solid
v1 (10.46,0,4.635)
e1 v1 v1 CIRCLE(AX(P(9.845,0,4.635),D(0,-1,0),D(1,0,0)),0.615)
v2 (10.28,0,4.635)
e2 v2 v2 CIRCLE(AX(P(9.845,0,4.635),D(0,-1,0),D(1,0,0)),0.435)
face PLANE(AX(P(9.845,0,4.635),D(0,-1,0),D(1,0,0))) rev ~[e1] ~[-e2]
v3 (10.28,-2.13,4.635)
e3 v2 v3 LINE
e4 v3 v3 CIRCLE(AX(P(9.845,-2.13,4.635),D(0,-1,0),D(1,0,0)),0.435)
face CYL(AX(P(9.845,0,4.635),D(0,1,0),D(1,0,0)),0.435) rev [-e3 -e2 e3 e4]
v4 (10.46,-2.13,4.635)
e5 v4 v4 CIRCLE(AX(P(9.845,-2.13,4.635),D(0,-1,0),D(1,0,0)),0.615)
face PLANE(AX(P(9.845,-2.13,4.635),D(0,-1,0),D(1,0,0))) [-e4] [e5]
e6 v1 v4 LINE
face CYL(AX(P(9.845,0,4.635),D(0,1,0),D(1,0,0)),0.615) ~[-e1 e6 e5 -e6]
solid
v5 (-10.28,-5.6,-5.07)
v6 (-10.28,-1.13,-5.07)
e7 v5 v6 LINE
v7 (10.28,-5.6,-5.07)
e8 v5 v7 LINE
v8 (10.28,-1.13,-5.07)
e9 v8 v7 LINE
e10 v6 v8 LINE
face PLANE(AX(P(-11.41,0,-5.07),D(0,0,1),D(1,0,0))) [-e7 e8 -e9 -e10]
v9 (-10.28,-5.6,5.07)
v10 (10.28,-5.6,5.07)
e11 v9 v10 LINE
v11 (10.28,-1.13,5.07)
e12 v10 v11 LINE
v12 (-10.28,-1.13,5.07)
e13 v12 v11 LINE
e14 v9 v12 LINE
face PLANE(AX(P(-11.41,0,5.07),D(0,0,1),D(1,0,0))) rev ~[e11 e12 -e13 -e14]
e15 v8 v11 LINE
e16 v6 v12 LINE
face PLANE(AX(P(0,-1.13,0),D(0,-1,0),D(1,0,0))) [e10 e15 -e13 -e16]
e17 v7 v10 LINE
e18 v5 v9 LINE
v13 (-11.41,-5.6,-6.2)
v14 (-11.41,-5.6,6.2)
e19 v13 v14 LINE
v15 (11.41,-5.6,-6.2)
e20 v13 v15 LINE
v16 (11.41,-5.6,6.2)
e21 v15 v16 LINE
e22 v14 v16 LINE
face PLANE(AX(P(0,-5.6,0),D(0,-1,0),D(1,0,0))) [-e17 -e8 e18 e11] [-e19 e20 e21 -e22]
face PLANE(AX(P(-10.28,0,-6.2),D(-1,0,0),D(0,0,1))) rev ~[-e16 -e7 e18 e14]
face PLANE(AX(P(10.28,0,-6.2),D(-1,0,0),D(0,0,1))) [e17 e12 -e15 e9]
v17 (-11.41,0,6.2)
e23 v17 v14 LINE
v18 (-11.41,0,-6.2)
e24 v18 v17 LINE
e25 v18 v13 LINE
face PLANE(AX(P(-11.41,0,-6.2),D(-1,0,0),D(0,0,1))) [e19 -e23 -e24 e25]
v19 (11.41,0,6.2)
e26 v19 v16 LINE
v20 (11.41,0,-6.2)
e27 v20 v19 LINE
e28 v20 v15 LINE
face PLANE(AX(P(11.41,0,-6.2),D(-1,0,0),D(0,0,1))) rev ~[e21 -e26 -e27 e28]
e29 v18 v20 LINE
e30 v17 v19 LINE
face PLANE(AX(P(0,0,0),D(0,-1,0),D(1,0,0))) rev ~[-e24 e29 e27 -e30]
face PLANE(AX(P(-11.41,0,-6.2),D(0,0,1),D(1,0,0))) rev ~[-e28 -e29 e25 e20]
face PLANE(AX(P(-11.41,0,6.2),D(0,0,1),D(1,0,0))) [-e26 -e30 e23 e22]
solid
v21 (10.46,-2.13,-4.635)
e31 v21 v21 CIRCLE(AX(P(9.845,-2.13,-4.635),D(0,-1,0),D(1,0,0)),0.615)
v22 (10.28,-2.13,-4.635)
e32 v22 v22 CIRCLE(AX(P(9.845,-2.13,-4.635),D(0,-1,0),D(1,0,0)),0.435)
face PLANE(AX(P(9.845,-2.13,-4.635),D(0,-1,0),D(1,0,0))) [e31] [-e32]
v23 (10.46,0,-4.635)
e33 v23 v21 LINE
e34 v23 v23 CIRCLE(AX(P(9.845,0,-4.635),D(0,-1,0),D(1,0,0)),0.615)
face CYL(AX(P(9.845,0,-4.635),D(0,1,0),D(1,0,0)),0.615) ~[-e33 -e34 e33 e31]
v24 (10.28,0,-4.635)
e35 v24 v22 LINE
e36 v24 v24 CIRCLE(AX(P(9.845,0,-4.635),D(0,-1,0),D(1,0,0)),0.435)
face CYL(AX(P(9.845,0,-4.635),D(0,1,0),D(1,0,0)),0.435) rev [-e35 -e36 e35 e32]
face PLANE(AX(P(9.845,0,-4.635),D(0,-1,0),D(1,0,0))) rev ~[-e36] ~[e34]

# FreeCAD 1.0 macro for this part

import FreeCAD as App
import Part
import Sketcher
from FreeCAD import Vector
Q = App.Units.Quantity


def faces_at(feature, points):
    """Names of the faces that lie closest to the given points."""
    faces = feature.Shape.Faces
    near = lambda p: min(range(len(faces)), key=lambda i: faces[i].distToShape(Part.Vertex(*p))[0])
    return sorted({f"Face{near(p) + 1}" for p in points})


def add_polygon(sketch, points):
    """Adds a closed chain of lines whose ends are joined by coincident constraints."""
    first, n = sketch.GeometryCount, len(points)
    for a, b in zip(points, points[1:] + points[:1]):
        sketch.addGeometry(Part.LineSegment(App.Vector(*a, 0), App.Vector(*b, 0)), False)
    for i in range(n):
        sketch.addConstraint(Sketcher.Constraint("Coincident", first + i, 2, first + (i + 1) % n, 1))

doc = App.newDocument("Part")
body = doc.addObject("PartDesign::Body", "Body")

sketch1 = body.newObject("Sketcher::SketchObject", "Sketch")
sketch1.AttachmentSupport = (doc.getObject("XZ_Plane"), [""])
sketch1.MapMode = "FlatFace"
add_polygon(sketch1, [(-11, 6), (-11, -6), (11, -6), (11, 6)])
sketch1.addConstraint(Sketcher.Constraint("Vertical", 0))
sketch1.addConstraint(Sketcher.Constraint("Horizontal", 1))
sketch1.addConstraint(Sketcher.Constraint("Vertical", 2))
sketch1.addConstraint(Sketcher.Constraint("Horizontal", 3))
sketch1.addConstraint(Sketcher.Constraint("Symmetric", 0, 2, 2, 2, -1, 1))
sketch1.addConstraint(Sketcher.Constraint("DistanceY", 0, 2, 0, 1, Q("12.4 mm")))
sketch1.addConstraint(Sketcher.Constraint("DistanceX", 1, 1, 1, 2, Q("22.82 mm")))
pad1 = body.newObject("PartDesign::Pad", "Pad")
pad1.Profile = sketch1
pad1.Length = 5.6
doc.recompute()

thickness = body.newObject("PartDesign::Thickness", "Thickness")
thickness.Base = (pad1, faces_at(pad1, [(0, -5.6, 0)]))
thickness.Value = 1.13
thickness.Reversed = True
thickness.Join = "Arc"
body2 = doc.addObject("PartDesign::Body", "Body001")

sketch2 = body2.newObject("Sketcher::SketchObject", "Sketch001")
sketch2.AttachmentSupport = (doc.getObject("XZ_Plane001"), [""])
sketch2.MapMode = "FlatFace"
sketch2.addGeometry(Part.Circle(Vector(9.85, 4.63, 0), Vector(0, 0, 1), 0.61), False)
sketch2.addGeometry(Part.Circle(Vector(9.85, 4.63, 0), Vector(0, 0, 1), 0.43), False)
sketch2.addConstraint(Sketcher.Constraint("Coincident", 1, 3, 0, 3))
sketch2.addConstraint(Sketcher.Constraint("Diameter", 0, Q("1.23 mm")))
sketch2.addConstraint(Sketcher.Constraint("Diameter", 1, Q("0.87 mm")))
sketch2.addConstraint(Sketcher.Constraint("DistanceX", -1, 1, 0, 3, Q("9.845 mm")))
sketch2.addConstraint(Sketcher.Constraint("DistanceY", -1, 1, 0, 3, Q("4.635 mm")))
pad2 = body2.newObject("PartDesign::Pad", "Pad001")
pad2.Profile = sketch2
pad2.Length = 2.13
body3 = doc.addObject("PartDesign::Body", "Body002")

sketch3 = body3.newObject("Sketcher::SketchObject", "Sketch002")
sketch3.AttachmentSupport = (doc.getObject("XZ_Plane002"), [""])
sketch3.MapMode = "FlatFace"
sketch3.addGeometry(Part.Circle(Vector(9.85, -4.63, 0), Vector(0, 0, 1), 0.61), False)
sketch3.addGeometry(Part.Circle(Vector(9.85, -4.63, 0), Vector(0, 0, 1), 0.43), False)
sketch3.addConstraint(Sketcher.Constraint("Coincident", 1, 3, 0, 3))
sketch3.addConstraint(Sketcher.Constraint("Diameter", 0, Q("1.23 mm")))
sketch3.addConstraint(Sketcher.Constraint("Diameter", 1, Q("0.87 mm")))
sketch3.addConstraint(Sketcher.Constraint("DistanceX", -1, 1, 0, 3, Q("9.845 mm")))
sketch3.addConstraint(Sketcher.Constraint("DistanceY", 0, 3, -1, 1, Q("4.635 mm")))
pad3 = body3.newObject("PartDesign::Pad", "Pad002")
pad3.Profile = sketch3
pad3.Length = 2.13

doc.recompute()
